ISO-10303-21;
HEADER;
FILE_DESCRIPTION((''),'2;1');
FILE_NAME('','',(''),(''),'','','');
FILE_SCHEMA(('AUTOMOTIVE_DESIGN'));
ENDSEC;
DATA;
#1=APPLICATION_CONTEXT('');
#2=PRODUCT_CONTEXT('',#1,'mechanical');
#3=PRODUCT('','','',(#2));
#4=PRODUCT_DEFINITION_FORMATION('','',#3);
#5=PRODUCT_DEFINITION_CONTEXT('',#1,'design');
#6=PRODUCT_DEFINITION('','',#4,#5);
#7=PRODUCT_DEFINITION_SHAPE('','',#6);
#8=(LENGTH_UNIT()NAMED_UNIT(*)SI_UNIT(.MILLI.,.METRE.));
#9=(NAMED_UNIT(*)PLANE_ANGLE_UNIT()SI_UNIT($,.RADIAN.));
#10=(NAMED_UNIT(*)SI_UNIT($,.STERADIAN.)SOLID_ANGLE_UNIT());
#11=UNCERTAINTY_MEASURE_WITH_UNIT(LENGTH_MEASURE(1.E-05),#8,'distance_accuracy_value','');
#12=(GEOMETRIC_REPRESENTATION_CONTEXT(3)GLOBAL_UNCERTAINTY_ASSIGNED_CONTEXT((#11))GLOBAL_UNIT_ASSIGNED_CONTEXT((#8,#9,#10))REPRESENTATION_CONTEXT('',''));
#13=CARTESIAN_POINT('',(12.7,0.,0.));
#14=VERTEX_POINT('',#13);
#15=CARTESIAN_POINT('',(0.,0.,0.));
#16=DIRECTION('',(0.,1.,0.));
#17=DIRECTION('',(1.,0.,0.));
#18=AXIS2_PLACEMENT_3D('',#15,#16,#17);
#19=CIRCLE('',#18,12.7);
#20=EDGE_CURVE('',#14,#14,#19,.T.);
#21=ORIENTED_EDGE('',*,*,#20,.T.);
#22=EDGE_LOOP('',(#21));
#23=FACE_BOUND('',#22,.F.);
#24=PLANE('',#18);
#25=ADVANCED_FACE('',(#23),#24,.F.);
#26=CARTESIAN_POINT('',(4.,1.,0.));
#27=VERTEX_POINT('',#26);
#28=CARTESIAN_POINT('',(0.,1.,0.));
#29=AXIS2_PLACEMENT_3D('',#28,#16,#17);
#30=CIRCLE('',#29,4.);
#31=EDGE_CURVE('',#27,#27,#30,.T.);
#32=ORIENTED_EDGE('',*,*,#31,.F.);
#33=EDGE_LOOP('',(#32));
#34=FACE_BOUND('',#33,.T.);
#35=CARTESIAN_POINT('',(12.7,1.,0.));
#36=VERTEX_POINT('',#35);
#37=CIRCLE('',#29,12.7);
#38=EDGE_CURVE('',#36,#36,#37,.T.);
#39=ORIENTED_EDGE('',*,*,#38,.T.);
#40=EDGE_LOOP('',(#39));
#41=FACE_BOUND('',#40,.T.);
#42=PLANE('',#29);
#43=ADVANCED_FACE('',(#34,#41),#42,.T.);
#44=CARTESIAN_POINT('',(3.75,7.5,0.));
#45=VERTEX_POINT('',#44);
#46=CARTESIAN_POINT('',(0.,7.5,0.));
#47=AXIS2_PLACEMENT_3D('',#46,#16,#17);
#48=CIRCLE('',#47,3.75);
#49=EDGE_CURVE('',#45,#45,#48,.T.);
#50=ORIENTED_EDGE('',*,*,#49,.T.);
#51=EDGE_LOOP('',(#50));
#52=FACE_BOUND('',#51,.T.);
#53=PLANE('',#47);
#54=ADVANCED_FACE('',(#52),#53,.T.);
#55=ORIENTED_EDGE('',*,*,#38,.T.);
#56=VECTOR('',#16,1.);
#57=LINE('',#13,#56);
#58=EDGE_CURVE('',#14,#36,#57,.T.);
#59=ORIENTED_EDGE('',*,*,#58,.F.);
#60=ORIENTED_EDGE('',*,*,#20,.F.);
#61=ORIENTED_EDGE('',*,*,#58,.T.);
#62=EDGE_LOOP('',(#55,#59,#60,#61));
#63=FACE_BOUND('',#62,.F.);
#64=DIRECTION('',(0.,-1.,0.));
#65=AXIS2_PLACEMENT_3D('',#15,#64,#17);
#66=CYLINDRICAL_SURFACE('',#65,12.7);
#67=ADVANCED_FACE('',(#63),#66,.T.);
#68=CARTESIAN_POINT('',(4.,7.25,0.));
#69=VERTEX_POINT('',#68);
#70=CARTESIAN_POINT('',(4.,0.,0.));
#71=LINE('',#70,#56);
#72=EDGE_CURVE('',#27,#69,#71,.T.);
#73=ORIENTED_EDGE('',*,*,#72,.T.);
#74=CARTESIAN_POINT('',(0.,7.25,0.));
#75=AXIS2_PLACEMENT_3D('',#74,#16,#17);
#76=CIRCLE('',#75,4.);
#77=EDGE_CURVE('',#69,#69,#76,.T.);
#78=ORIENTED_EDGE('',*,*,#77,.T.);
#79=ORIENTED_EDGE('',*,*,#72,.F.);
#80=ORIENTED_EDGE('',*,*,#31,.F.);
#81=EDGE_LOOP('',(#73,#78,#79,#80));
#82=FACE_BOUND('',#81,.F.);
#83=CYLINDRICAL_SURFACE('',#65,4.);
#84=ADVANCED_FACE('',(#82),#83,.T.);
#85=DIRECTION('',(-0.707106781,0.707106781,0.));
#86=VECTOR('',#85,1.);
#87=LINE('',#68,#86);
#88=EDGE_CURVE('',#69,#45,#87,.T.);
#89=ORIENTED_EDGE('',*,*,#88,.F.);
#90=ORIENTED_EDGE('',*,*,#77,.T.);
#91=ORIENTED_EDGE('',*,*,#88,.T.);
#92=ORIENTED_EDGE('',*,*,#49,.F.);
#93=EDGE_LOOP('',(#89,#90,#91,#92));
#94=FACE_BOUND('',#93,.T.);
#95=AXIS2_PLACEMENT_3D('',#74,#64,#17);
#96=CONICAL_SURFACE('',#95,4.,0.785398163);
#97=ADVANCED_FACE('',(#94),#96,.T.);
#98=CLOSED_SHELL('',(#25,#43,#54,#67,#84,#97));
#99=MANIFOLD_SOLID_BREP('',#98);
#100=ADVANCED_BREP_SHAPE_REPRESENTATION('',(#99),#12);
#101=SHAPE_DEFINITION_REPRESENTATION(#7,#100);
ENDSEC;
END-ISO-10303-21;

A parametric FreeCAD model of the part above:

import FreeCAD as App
import Part
import Sketcher

V = App.Vector


def edges_at(feature, points):
    """Names of the edges that pass closest to the given points."""
    edges = feature.Shape.Edges
    near = lambda p: min(range(len(edges)), key=lambda i: edges[i].distToShape(Part.Vertex(*p))[0])
    return sorted({f"Edge{near(p) + 1}" for p in points})

doc = App.newDocument("Part")
params = doc.addObject("Spreadsheet::Sheet", "Params")
for row, (alias, value) in enumerate([
    ("sketch1_diameter", "8 mm"),
    ("sketch1_diameter2", "25.4 mm"),
    ("pad1_length", "1 mm"),
    ("sketch2_diameter", "8 mm"),
    ("pad2_length", "7.5 mm"),
    ("chamfer_size", "0.25 mm"),
], start=1):
    params.set(f"A{row}", alias)
    params.set(f"B{row}", "=" + value)
    params.setAlias(f"B{row}", alias)

body = doc.addObject("PartDesign::Body", "Body")

# Sketch on XZ plane
sketch1 = doc.addObject("Sketcher::SketchObject", "Sketch")
body.addObject(sketch1)
sketch1.AttachmentSupport = (doc.XZ_Plane, [""])
sketch1.MapMode = "FlatFace"
sketch1.addGeometry([
    Part.Circle(V(0, 0, 0), V(0, 0, 1), 12.7),
    Part.Circle(V(0, 0, 0), V(0, 0, 1), 4),
], False)
sketch1.addConstraint([
    Sketcher.Constraint("Coincident", 0, 3, -1, 1),
    Sketcher.Constraint("Coincident", 1, 3, -1, 1),
    Sketcher.Constraint("Diameter", 1, 8.0),
    Sketcher.Constraint("Diameter", 0, 25.4),
])
sketch1.setExpression("Constraints[2]", "Params.sketch1_diameter")
sketch1.setExpression("Constraints[3]", "Params.sketch1_diameter2")
pad1 = doc.addObject("PartDesign::Pad", "Pad")
body.addObject(pad1)
pad1.Profile = sketch1
pad1.setExpression("Length", "Params.pad1_length")
pad1.Reversed = True

# Sketch on XZ plane
sketch2 = doc.addObject("Sketcher::SketchObject", "Sketch001")
body.addObject(sketch2)
sketch2.AttachmentSupport = (doc.XZ_Plane, [""])
sketch2.MapMode = "FlatFace"
sketch2.addGeometry(Part.Circle(V(0, 0, 0), V(0, 0, 1), 4), False)
sketch2.addConstraint([
    Sketcher.Constraint("Coincident", 0, 3, -1, 1),
    Sketcher.Constraint("Diameter", 0, 8.0),
])
sketch2.setExpression("Constraints[1]", "Params.sketch2_diameter")
pad2 = doc.addObject("PartDesign::Pad", "Pad001")
body.addObject(pad2)
pad2.Profile = sketch2
pad2.setExpression("Length", "Params.pad2_length")
pad2.Reversed = True
doc.recompute()

chamfer = doc.addObject("PartDesign::Chamfer", "Chamfer")
body.addObject(chamfer)
chamfer.Base = (pad2, edges_at(pad2, [(-3.729, 7.5, 1.446)]))
chamfer.setExpression("Size", "Params.chamfer_size")

doc.recompute()
